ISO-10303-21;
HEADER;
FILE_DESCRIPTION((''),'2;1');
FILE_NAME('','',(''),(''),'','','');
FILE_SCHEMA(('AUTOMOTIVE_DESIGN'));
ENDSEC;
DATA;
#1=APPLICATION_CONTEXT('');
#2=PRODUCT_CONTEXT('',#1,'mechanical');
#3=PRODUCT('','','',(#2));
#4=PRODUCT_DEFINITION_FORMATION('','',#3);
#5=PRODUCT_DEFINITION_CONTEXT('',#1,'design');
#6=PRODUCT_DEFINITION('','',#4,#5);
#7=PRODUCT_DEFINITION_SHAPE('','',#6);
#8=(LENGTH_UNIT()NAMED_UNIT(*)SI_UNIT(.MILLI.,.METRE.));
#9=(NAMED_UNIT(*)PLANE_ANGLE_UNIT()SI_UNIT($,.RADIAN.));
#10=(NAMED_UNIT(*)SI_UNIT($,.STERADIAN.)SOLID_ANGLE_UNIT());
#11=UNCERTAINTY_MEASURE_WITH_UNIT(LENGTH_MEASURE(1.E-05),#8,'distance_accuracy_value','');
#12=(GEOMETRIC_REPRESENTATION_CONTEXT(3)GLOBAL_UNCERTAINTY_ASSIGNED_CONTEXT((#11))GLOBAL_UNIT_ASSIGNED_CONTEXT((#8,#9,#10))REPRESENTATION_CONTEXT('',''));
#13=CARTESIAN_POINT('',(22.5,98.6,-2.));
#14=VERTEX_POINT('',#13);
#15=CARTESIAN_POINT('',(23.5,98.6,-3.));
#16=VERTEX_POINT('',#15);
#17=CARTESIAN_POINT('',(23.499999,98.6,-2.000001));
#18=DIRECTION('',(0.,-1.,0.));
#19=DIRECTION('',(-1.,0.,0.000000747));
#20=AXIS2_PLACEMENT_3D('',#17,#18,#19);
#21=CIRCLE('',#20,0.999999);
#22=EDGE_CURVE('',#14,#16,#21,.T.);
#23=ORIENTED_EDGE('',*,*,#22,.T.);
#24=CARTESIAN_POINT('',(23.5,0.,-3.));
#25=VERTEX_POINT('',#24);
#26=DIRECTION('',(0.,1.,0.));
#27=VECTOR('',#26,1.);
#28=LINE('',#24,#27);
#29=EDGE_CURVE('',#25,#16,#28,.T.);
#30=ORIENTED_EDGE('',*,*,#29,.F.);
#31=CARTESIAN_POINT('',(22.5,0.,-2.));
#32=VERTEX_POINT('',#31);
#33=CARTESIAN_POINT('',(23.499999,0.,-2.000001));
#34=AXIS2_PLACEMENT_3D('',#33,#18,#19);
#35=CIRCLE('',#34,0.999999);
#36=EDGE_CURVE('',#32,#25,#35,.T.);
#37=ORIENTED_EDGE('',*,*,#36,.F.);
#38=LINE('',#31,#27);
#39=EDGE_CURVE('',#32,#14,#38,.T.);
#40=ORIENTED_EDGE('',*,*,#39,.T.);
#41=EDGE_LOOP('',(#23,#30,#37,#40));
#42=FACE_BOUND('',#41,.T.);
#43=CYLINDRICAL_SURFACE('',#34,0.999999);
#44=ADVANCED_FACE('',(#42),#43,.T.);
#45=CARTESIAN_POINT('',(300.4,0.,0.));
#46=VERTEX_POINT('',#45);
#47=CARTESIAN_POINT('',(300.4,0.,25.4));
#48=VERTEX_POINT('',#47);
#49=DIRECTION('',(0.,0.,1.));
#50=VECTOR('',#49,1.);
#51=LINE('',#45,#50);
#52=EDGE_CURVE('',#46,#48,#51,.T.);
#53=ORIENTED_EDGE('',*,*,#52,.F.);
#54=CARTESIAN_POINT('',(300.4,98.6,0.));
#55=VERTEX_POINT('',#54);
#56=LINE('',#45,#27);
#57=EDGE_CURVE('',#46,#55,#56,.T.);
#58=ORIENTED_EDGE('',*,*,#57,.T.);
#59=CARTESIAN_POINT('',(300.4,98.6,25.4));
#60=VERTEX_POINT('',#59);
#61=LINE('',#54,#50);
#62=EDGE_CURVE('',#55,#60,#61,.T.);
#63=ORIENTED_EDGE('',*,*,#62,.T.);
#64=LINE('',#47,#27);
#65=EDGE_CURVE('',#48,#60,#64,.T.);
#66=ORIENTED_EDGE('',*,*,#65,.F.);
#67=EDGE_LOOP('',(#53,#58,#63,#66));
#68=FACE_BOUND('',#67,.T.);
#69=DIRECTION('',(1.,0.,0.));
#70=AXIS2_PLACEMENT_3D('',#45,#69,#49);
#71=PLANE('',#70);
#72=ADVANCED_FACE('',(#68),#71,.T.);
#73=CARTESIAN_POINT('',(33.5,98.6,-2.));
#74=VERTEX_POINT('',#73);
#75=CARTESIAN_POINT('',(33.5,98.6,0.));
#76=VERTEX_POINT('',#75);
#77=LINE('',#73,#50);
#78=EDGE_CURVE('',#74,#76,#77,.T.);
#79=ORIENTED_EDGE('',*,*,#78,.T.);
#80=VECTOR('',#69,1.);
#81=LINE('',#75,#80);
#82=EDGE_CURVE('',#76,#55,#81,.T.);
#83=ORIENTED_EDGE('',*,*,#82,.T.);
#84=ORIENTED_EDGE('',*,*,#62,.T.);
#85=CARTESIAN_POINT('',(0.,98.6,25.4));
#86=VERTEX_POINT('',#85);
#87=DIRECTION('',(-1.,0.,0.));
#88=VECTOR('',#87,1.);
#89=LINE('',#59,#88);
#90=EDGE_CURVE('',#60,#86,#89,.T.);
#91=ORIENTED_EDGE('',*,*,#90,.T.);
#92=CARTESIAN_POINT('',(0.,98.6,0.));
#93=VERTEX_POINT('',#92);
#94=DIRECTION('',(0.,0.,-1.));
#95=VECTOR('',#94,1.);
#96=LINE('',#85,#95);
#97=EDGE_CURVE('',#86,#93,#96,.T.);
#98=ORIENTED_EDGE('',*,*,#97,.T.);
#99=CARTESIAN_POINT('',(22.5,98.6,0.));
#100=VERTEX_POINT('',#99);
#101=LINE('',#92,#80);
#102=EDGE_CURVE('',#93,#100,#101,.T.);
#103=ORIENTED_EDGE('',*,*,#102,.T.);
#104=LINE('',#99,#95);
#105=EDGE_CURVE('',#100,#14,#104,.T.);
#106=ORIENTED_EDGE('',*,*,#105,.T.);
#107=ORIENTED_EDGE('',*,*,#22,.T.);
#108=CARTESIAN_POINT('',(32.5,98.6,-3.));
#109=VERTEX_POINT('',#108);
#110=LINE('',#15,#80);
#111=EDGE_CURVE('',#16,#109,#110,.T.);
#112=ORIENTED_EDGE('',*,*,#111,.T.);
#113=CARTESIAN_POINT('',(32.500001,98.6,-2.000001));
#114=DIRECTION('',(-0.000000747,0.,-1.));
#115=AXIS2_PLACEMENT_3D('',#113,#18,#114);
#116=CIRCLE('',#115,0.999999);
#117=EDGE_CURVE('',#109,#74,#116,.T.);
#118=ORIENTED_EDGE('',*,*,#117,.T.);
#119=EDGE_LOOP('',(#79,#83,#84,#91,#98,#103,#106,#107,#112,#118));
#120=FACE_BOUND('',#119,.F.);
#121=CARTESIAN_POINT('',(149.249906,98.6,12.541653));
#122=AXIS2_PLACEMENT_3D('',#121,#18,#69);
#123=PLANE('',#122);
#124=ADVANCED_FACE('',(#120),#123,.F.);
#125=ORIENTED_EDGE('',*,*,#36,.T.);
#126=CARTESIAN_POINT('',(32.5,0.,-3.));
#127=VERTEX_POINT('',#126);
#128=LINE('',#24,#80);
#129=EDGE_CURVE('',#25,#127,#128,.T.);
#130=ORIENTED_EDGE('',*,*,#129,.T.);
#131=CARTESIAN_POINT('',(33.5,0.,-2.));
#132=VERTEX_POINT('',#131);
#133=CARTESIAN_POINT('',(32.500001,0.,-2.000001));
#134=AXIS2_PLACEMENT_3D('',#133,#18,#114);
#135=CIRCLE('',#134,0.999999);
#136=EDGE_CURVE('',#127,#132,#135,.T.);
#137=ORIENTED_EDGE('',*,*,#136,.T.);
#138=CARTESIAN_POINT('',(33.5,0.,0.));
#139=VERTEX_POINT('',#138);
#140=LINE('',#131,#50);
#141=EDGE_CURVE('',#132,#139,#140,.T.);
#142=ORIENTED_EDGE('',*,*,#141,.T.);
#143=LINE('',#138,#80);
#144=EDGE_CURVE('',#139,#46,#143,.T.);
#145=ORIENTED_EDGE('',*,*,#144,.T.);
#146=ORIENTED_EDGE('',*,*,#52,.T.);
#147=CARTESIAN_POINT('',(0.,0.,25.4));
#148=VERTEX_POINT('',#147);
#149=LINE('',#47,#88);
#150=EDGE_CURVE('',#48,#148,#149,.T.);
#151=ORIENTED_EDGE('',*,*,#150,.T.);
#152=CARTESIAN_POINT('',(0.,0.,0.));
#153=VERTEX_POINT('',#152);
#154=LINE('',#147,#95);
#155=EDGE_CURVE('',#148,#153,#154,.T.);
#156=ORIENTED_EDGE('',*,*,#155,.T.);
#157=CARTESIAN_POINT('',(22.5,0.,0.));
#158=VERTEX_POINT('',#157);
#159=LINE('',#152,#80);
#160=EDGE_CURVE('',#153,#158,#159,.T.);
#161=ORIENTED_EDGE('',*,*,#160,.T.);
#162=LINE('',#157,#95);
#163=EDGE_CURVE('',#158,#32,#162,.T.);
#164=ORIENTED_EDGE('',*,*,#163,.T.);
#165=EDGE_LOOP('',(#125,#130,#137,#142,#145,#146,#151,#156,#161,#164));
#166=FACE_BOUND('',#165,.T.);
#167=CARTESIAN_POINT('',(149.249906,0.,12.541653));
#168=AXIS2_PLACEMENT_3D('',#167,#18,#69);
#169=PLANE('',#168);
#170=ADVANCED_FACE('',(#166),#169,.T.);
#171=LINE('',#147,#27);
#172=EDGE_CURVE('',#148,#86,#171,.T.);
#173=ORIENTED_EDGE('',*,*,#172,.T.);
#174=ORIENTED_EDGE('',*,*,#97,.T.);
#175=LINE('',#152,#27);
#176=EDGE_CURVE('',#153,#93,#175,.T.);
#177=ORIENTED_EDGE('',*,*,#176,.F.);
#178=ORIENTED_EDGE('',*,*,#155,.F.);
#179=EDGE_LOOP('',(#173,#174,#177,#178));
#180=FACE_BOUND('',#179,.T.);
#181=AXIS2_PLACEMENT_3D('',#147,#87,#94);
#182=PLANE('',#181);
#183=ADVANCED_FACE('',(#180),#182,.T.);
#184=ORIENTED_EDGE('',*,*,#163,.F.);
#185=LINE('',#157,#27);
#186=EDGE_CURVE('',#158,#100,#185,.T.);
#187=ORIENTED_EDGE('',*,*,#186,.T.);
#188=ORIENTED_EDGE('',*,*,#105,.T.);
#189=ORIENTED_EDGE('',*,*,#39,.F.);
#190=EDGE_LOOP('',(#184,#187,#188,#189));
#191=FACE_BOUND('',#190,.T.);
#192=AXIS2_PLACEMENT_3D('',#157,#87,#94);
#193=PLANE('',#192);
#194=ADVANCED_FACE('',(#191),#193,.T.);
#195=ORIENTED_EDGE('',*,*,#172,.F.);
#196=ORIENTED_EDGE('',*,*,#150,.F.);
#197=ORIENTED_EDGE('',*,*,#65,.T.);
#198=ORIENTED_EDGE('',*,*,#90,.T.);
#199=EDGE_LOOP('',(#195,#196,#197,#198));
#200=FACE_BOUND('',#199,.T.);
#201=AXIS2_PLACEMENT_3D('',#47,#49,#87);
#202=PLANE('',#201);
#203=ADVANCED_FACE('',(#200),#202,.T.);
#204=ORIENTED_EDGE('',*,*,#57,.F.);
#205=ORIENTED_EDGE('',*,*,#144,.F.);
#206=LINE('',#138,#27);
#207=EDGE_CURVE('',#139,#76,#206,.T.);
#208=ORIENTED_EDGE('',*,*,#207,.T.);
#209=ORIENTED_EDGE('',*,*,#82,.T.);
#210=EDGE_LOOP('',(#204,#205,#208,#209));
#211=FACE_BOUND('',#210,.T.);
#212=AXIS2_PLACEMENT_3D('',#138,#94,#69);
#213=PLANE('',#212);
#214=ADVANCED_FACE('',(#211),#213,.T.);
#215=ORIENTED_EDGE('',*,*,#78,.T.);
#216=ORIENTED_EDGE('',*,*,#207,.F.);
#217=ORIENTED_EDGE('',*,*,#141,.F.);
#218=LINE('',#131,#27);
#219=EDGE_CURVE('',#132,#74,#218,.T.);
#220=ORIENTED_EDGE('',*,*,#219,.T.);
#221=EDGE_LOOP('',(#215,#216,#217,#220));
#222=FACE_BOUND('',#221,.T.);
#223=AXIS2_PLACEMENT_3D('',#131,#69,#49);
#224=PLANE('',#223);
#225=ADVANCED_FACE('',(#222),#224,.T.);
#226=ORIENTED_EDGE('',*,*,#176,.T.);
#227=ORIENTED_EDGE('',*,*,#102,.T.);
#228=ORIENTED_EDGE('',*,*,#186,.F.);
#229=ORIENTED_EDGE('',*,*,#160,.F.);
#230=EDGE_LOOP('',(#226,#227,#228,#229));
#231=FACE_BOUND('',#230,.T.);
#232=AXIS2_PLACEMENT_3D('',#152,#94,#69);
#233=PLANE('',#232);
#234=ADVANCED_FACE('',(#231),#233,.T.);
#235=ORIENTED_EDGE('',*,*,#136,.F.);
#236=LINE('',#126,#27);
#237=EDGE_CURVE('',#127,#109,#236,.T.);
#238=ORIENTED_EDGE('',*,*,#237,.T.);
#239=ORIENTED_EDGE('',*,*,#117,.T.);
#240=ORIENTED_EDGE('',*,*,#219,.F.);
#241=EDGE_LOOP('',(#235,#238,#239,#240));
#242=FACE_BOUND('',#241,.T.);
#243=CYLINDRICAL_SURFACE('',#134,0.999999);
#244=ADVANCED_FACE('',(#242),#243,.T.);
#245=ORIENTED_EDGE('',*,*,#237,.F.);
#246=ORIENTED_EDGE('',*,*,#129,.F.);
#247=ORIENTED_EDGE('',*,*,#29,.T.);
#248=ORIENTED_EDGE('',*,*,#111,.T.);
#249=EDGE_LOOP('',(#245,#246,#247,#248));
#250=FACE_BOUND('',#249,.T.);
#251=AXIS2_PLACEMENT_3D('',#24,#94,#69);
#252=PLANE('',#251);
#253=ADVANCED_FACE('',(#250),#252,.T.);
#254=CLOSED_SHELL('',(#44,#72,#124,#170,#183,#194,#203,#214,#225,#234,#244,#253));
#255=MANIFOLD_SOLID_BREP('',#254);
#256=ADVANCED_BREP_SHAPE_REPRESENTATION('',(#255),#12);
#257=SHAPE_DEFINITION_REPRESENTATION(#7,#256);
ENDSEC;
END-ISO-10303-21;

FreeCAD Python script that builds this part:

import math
import FreeCAD as App
import Part
import Sketcher

V = App.Vector
Q = App.Units.Quantity

doc = App.newDocument("Part")
body = doc.addObject("PartDesign::Body", "Body")

sketch1 = doc.addObject("Sketcher::SketchObject", "Sketch")
body.addObject(sketch1)
sketch1.AttachmentSupport = (doc.XZ_Plane, [""])
sketch1.MapMode = "FlatFace"
sketch1.addGeometry([
    Part.LineSegment(V(0, 25.4, 0), V(0, 0, 0)),
    Part.LineSegment(V(0, 0, 0), V(22.5, 0, 0)),
    Part.LineSegment(V(22.5, 0, 0), V(22.5, -2, 0)),
    Part.ArcOfCircle(Part.Circle(V(23.5, -2, 0), V(0, 0, 1), 1), math.radians(180), math.radians(270)),
    Part.LineSegment(V(23.5, -3, 0), V(32.5, -3, 0)),
    Part.ArcOfCircle(Part.Circle(V(32.5, -2, 0), V(0, 0, 1), 1), math.radians(-90), math.radians(0)),
    Part.LineSegment(V(33.5, -2, 0), V(33.5, 0, 0)),
    Part.LineSegment(V(33.5, 0, 0), V(300.4, 0, 0)),
    Part.LineSegment(V(300.4, 0, 0), V(300.4, 25.4, 0)),
    Part.LineSegment(V(300.4, 25.4, 0), V(0, 25.4, 0)),
], False)
sketch1.addConstraint([
    Sketcher.Constraint("Coincident", 0, 2, 1, 1),
    Sketcher.Constraint("Coincident", 1, 2, 2, 1),
    Sketcher.Constraint("Tangent", 2, 2, 3, 1),
    Sketcher.Constraint("Tangent", 3, 2, 4, 1),
    Sketcher.Constraint("Tangent", 4, 2, 5, 1),
    Sketcher.Constraint("Tangent", 5, 2, 6, 1),
    Sketcher.Constraint("Coincident", 6, 2, 7, 1),
    Sketcher.Constraint("Coincident", 7, 2, 8, 1),
    Sketcher.Constraint("Coincident", 8, 2, 9, 1),
    Sketcher.Constraint("Coincident", 9, 2, 0, 1),
    Sketcher.Constraint("Vertical", 0),
    Sketcher.Constraint("Horizontal", 1),
    Sketcher.Constraint("Vertical", 2),
    Sketcher.Constraint("Horizontal", 4),
    Sketcher.Constraint("Vertical", 6),
    Sketcher.Constraint("Horizontal", 7),
    Sketcher.Constraint("Vertical", 8),
    Sketcher.Constraint("Horizontal", 9),
    Sketcher.Constraint("Coincident", 0, 2, -1, 1),
    Sketcher.Constraint("Equal", 3, 5),
    Sketcher.Constraint("PointOnObject", 6, 2, -1),
    Sketcher.Constraint("Radius", 3, Q("0.999999 mm")),
    Sketcher.Constraint("DistanceX", 4, 1, 4, 2, Q("9 mm")),
    Sketcher.Constraint("DistanceY", 2, 2, 2, 1, Q("2 mm")),
    Sketcher.Constraint("DistanceX", 1, 1, 1, 2, Q("22.5 mm")),
    Sketcher.Constraint("DistanceX", 7, 1, 7, 2, Q("266.9 mm")),
    Sketcher.Constraint("DistanceY", 0, 2, 0, 1, Q("25.4 mm")),
])
pad1 = doc.addObject("PartDesign::Pad", "Pad")
body.addObject(pad1)
pad1.Profile = sketch1
pad1.Length = 98.6
pad1.Reversed = True

doc.recompute()
